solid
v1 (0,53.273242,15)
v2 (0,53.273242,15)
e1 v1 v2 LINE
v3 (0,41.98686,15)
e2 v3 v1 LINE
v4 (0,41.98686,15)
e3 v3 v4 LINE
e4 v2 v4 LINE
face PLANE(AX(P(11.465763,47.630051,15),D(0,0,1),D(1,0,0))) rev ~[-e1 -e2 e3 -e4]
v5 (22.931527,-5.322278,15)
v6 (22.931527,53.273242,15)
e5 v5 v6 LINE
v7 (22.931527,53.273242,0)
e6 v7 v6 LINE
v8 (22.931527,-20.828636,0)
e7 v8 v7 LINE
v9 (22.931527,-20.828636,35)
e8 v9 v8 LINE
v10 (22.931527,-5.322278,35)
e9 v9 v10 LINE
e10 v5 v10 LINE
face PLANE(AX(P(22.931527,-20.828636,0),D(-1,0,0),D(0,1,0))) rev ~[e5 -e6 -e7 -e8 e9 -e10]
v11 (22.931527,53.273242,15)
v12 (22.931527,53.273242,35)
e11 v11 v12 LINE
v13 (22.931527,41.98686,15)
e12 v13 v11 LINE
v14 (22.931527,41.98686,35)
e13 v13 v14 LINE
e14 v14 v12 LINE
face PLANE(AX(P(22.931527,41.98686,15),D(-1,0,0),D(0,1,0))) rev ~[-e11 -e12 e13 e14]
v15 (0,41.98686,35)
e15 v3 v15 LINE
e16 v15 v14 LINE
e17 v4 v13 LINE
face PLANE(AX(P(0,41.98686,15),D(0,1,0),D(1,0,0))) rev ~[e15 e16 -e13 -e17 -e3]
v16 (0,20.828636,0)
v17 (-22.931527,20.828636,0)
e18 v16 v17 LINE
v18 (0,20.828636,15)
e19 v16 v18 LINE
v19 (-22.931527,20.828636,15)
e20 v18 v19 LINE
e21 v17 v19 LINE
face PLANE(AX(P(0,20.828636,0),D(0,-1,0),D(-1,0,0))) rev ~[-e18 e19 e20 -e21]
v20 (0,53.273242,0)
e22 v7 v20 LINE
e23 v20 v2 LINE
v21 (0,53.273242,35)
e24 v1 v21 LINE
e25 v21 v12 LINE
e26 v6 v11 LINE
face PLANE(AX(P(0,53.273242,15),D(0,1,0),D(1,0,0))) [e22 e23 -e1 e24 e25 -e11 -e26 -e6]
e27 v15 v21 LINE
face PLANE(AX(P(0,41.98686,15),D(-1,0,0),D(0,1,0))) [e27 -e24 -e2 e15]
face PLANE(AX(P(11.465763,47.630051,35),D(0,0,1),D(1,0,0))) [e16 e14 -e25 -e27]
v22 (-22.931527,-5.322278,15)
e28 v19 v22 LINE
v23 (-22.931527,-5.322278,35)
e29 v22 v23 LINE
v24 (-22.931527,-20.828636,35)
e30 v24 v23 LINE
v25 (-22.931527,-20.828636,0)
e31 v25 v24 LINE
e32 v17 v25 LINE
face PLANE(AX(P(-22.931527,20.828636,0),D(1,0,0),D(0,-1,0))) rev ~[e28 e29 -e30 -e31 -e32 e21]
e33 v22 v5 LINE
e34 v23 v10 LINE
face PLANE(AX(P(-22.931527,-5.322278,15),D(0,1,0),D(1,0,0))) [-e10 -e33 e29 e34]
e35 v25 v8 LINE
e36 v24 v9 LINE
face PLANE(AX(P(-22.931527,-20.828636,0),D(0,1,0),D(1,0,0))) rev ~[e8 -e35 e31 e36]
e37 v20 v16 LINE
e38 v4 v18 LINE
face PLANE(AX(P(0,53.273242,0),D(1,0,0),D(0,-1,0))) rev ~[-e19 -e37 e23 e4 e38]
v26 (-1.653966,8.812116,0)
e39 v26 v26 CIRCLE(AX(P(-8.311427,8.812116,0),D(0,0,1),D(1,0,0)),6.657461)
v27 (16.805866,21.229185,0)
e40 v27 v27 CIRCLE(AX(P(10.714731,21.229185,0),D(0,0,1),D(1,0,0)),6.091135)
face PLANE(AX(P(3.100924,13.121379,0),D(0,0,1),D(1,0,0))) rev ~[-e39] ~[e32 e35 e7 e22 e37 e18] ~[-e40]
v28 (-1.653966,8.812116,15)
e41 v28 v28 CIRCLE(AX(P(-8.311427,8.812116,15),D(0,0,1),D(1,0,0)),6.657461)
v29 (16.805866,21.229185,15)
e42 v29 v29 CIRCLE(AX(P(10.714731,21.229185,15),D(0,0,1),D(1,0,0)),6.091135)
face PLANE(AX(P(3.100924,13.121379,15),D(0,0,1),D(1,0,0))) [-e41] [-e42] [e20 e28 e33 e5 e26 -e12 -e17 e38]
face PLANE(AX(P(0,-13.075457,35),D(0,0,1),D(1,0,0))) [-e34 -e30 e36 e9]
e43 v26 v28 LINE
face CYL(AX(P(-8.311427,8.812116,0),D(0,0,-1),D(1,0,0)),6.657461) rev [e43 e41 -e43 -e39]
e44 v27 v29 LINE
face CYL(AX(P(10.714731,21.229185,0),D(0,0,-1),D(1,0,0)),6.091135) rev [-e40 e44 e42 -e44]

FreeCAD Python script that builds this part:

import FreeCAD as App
import Part
import Sketcher

V = App.Vector
Q = App.Units.Quantity


def add_polygon(sketch, points):
    """Adds a closed chain of lines whose ends are joined by coincident constraints."""
    first, n = sketch.GeometryCount, len(points)
    for a, b in zip(points, points[1:] + points[:1]):
        sketch.addGeometry(Part.LineSegment(App.Vector(*a, 0), App.Vector(*b, 0)), False)
    for i in range(n):
        sketch.addConstraint(Sketcher.Constraint("Coincident", first + i, 2, first + (i + 1) % n, 1))

doc = App.newDocument("Part")
params = doc.addObject("Spreadsheet::Sheet", "Params")
for row, (alias, value) in enumerate([
    ("pad1_length", "15 mm"),
    ("pad2_length", "20 mm"),
], start=1):
    params.set(f"A{row}", alias)
    params.set(f"B{row}", "=" + value)
    params.setAlias(f"B{row}", alias)

body = doc.addObject("PartDesign::Body", "Body")

# Sketch on XY plane
sketch1 = body.newObject("Sketcher::SketchObject", "Sketch")
sketch1.AttachmentSupport = (doc.getObject("XY_Plane"), [""])
sketch1.MapMode = "FlatFace"
add_polygon(sketch1, [(-23, -21), (23, -21), (23, 53), (0, 53), (0, 21), (-23, 21)])  # lines 0-5
sketch1.addGeometry(Part.Circle(V(-8, 9, 0), V(0, 0, 1), 7), False)  # 6
sketch1.addGeometry(Part.Circle(V(11, 21, 0), V(0, 0, 1), 6), False)  # 7
sketch1.addConstraint(Sketcher.Constraint("Horizontal", 0))
sketch1.addConstraint(Sketcher.Constraint("Vertical", 1))
sketch1.addConstraint(Sketcher.Constraint("Horizontal", 2))
sketch1.addConstraint(Sketcher.Constraint("Vertical", 3))
sketch1.addConstraint(Sketcher.Constraint("Horizontal", 4))
sketch1.addConstraint(Sketcher.Constraint("Vertical", 5))
sketch1.addConstraint(Sketcher.Constraint("Symmetric", 0, 2, 4, 2, -1, 1))
sketch1.addConstraint(Sketcher.Constraint("PointOnObject", 2, 2, -2))
sketch1.addConstraint(Sketcher.Constraint("Diameter", 6, Q("13.314922 mm")))
sketch1.addConstraint(Sketcher.Constraint("Diameter", 7, Q("12.18227 mm")))
sketch1.addConstraint(Sketcher.Constraint("DistanceY", 1, 1, 1, 2, Q("74.101878 mm")))
sketch1.addConstraint(Sketcher.Constraint("DistanceX", 4, 2, 6, 3, Q("14.6201 mm")))
sketch1.addConstraint(Sketcher.Constraint("DistanceX", 0, 1, 0, 2, Q("45.863054 mm")))
sketch1.addConstraint(Sketcher.Constraint("DistanceY", 3, 2, 3, 1, Q("32.444606 mm")))
sketch1.addConstraint(Sketcher.Constraint("DistanceX", -1, 1, 7, 3, Q("10.714731 mm")))
sketch1.addConstraint(Sketcher.Constraint("DistanceY", 6, 3, 7, 3, Q("12.417069 mm")))
sketch1.addConstraint(Sketcher.Constraint("DistanceY", 0, 2, 6, 3, Q("29.640752 mm")))
pad1 = body.newObject("PartDesign::Pad", "Pad")
pad1.Profile = sketch1
pad1.setExpression("Length", "Params.pad1_length")

# Sketch on XY plane
sketch2 = body.newObject("Sketcher::SketchObject", "Sketch001")
sketch2.AttachmentSupport = (doc.getObject("XY_Plane"), [""])
sketch2.MapMode = "FlatFace"
sketch2.AttachmentOffset = App.Placement(V(0, 0, 15), App.Rotation())
add_polygon(sketch2, [(0, 53), (0, 42), (23, 42), (23, 53)])  # lines 0-3
add_polygon(sketch2, [(-23, -5), (-23, -21), (23, -21), (23, -5)])  # lines 4-7
sketch2.addConstraint(Sketcher.Constraint("Vertical", 0))
sketch2.addConstraint(Sketcher.Constraint("Horizontal", 1))
sketch2.addConstraint(Sketcher.Constraint("Vertical", 2))
sketch2.addConstraint(Sketcher.Constraint("Horizontal", 3))
sketch2.addConstraint(Sketcher.Constraint("Vertical", 4))
sketch2.addConstraint(Sketcher.Constraint("Horizontal", 5))
sketch2.addConstraint(Sketcher.Constraint("Vertical", 6))
sketch2.addConstraint(Sketcher.Constraint("Horizontal", 7))
sketch2.addConstraint(Sketcher.Constraint("PointOnObject", 0, 2, -2))
sketch2.addConstraint(Sketcher.Constraint("Vertical", 2, 2, 5, 2))
sketch2.addConstraint(Sketcher.Constraint("DistanceX", 1, 1, 1, 2, Q("22.931527 mm")))
sketch2.addConstraint(Sketcher.Constraint("DistanceX", 5, 1, 5, 2, Q("45.863054 mm")))
sketch2.addConstraint(Sketcher.Constraint("DistanceY", 0, 2, 0, 1, Q("11.286382 mm")))
sketch2.addConstraint(Sketcher.Constraint("DistanceY", 4, 2, 4, 1, Q("15.506358 mm")))
sketch2.addConstraint(Sketcher.Constraint("DistanceY", -1, 1, 0, 2, Q("41.98686 mm")))
sketch2.addConstraint(Sketcher.Constraint("DistanceY", 4, 2, 3, 2, Q("74.101878 mm")))
pad2 = body.newObject("PartDesign::Pad", "Pad001")
pad2.Profile = sketch2
pad2.setExpression("Length", "Params.pad2_length")

doc.recompute()
